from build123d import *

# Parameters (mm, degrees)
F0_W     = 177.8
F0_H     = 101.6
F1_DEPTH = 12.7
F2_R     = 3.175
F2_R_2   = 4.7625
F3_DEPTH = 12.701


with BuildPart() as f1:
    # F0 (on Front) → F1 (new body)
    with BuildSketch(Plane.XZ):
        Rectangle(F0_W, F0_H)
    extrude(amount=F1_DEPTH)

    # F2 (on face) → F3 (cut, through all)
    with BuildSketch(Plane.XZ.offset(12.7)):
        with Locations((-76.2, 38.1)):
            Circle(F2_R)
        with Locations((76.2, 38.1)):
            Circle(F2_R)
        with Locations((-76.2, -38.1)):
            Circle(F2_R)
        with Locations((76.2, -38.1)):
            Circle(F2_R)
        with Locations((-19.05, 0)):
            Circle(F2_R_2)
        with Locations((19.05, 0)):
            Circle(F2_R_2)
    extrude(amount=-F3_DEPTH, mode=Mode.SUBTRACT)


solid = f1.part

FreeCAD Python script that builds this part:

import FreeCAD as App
import Part
import Sketcher

V = App.Vector
Q = App.Units.Quantity


def add_polygon(sketch, points):
    """Adds a closed chain of lines whose ends are joined by coincident constraints."""
    first, n = sketch.GeometryCount, len(points)
    for a, b in zip(points, points[1:] + points[:1]):
        sketch.addGeometry(Part.LineSegment(App.Vector(*a, 0), App.Vector(*b, 0)), False)
    for i in range(n):
        sketch.addConstraint(Sketcher.Constraint("Coincident", first + i, 2, first + (i + 1) % n, 1))

doc = App.newDocument("Part")
params = doc.addObject("Spreadsheet::Sheet", "Params")
for row, (alias, value) in enumerate([
    ("sketch1_width", "7 in"),
    ("sketch1_height", "4 in"),
    ("pad1_length", "0.5 in"),
    ("sketch2_diameter", "0.25 in"),
    ("sketch2_diameter2", "0.375 in"),
], start=1):
    params.set(f"A{row}", alias)
    params.set(f"B{row}", "=" + value)
    params.setAlias(f"B{row}", alias)

body = doc.addObject("PartDesign::Body", "Body")

# Sketch on XZ plane
sketch1 = doc.addObject("Sketcher::SketchObject", "Sketch")
body.addObject(sketch1)
sketch1.AttachmentSupport = (doc.XZ_Plane, [""])
sketch1.MapMode = "FlatFace"
add_polygon(sketch1, [(-89, 51), (-89, -51), (89, -51), (89, 51)])  # lines 0-3
sketch1.addConstraint([
    Sketcher.Constraint("Vertical", 0),
    Sketcher.Constraint("Horizontal", 1),
    Sketcher.Constraint("Vertical", 2),
    Sketcher.Constraint("Horizontal", 3),
    Sketcher.Constraint("Symmetric", 0, 2, 2, 2, -1, 1),
    Sketcher.Constraint("DistanceX", 1, 1, 1, 2, Q("7 in")),
    Sketcher.Constraint("DistanceY", 0, 2, 0, 1, Q("4 in")),
])
sketch1.setExpression("Constraints[9]", "Params.sketch1_width")
sketch1.setExpression("Constraints[10]", "Params.sketch1_height")
pad1 = doc.addObject("PartDesign::Pad", "Pad")
body.addObject(pad1)
pad1.Profile = sketch1
pad1.setExpression("Length", "Params.pad1_length")

# Sketch on XZ plane
sketch2 = doc.addObject("Sketcher::SketchObject", "Sketch001")
body.addObject(sketch2)
sketch2.AttachmentSupport = (doc.XZ_Plane, [""])
sketch2.MapMode = "FlatFace"
sketch2.AttachmentOffset = App.Placement(V(0, 0, 0.5 * 25.4), App.Rotation())
sketch2.addGeometry([
    Part.Circle(V(-76.2, 38.1, 0), V(0, 0, 1), 3.2),  # 0
    Part.Circle(V(76.2, 38.1, 0), V(0, 0, 1), 3.2),  # 1
    Part.Circle(V(-76.2, -38.1, 0), V(0, 0, 1), 3.2),  # 2
    Part.Circle(V(76.2, -38.1, 0), V(0, 0, 1), 3.2),  # 3
    Part.Circle(V(-19.1, 0, 0), V(0, 0, 1), 4.8),  # 4
    Part.Circle(V(19.1, 0, 0), V(0, 0, 1), 4.8),  # 5
], False)
sketch2.addConstraint([
    Sketcher.Constraint("Equal", 0, 1),
    Sketcher.Constraint("Equal", 1, 2),
    Sketcher.Constraint("Equal", 2, 3),
    Sketcher.Constraint("Equal", 4, 5),
    Sketcher.Constraint("Symmetric", 1, 3, 2, 3, -1, 1),
    Sketcher.Constraint("Symmetric", 0, 3, 3, 3, -1, 1),
    Sketcher.Constraint("Symmetric", 4, 3, 5, 3, -1, 1),
    Sketcher.Constraint("Symmetric", 0, 3, 1, 3, -2),
    Sketcher.Constraint("PointOnObject", 4, 3, -1),
    Sketcher.Constraint("Diameter", 0, Q("0.25 in")),
    Sketcher.Constraint("Diameter", 4, Q("0.375 in")),
    Sketcher.Constraint("DistanceX", 0, 3, -1, 1, Q("3 in")),
    Sketcher.Constraint("DistanceY", 2, 3, 0, 3, Q("3 in")),
    Sketcher.Constraint("DistanceX", 4, 3, 5, 3, Q("1.5 in")),
])
sketch2.setExpression("Constraints[9]", "Params.sketch2_diameter")
sketch2.setExpression("Constraints[10]", "Params.sketch2_diameter2")
pocket1 = doc.addObject("PartDesign::Pocket", "Pocket")
body.addObject(pocket1)
pocket1.Profile = sketch2
pocket1.Type = "ThroughAll"

doc.recompute()
